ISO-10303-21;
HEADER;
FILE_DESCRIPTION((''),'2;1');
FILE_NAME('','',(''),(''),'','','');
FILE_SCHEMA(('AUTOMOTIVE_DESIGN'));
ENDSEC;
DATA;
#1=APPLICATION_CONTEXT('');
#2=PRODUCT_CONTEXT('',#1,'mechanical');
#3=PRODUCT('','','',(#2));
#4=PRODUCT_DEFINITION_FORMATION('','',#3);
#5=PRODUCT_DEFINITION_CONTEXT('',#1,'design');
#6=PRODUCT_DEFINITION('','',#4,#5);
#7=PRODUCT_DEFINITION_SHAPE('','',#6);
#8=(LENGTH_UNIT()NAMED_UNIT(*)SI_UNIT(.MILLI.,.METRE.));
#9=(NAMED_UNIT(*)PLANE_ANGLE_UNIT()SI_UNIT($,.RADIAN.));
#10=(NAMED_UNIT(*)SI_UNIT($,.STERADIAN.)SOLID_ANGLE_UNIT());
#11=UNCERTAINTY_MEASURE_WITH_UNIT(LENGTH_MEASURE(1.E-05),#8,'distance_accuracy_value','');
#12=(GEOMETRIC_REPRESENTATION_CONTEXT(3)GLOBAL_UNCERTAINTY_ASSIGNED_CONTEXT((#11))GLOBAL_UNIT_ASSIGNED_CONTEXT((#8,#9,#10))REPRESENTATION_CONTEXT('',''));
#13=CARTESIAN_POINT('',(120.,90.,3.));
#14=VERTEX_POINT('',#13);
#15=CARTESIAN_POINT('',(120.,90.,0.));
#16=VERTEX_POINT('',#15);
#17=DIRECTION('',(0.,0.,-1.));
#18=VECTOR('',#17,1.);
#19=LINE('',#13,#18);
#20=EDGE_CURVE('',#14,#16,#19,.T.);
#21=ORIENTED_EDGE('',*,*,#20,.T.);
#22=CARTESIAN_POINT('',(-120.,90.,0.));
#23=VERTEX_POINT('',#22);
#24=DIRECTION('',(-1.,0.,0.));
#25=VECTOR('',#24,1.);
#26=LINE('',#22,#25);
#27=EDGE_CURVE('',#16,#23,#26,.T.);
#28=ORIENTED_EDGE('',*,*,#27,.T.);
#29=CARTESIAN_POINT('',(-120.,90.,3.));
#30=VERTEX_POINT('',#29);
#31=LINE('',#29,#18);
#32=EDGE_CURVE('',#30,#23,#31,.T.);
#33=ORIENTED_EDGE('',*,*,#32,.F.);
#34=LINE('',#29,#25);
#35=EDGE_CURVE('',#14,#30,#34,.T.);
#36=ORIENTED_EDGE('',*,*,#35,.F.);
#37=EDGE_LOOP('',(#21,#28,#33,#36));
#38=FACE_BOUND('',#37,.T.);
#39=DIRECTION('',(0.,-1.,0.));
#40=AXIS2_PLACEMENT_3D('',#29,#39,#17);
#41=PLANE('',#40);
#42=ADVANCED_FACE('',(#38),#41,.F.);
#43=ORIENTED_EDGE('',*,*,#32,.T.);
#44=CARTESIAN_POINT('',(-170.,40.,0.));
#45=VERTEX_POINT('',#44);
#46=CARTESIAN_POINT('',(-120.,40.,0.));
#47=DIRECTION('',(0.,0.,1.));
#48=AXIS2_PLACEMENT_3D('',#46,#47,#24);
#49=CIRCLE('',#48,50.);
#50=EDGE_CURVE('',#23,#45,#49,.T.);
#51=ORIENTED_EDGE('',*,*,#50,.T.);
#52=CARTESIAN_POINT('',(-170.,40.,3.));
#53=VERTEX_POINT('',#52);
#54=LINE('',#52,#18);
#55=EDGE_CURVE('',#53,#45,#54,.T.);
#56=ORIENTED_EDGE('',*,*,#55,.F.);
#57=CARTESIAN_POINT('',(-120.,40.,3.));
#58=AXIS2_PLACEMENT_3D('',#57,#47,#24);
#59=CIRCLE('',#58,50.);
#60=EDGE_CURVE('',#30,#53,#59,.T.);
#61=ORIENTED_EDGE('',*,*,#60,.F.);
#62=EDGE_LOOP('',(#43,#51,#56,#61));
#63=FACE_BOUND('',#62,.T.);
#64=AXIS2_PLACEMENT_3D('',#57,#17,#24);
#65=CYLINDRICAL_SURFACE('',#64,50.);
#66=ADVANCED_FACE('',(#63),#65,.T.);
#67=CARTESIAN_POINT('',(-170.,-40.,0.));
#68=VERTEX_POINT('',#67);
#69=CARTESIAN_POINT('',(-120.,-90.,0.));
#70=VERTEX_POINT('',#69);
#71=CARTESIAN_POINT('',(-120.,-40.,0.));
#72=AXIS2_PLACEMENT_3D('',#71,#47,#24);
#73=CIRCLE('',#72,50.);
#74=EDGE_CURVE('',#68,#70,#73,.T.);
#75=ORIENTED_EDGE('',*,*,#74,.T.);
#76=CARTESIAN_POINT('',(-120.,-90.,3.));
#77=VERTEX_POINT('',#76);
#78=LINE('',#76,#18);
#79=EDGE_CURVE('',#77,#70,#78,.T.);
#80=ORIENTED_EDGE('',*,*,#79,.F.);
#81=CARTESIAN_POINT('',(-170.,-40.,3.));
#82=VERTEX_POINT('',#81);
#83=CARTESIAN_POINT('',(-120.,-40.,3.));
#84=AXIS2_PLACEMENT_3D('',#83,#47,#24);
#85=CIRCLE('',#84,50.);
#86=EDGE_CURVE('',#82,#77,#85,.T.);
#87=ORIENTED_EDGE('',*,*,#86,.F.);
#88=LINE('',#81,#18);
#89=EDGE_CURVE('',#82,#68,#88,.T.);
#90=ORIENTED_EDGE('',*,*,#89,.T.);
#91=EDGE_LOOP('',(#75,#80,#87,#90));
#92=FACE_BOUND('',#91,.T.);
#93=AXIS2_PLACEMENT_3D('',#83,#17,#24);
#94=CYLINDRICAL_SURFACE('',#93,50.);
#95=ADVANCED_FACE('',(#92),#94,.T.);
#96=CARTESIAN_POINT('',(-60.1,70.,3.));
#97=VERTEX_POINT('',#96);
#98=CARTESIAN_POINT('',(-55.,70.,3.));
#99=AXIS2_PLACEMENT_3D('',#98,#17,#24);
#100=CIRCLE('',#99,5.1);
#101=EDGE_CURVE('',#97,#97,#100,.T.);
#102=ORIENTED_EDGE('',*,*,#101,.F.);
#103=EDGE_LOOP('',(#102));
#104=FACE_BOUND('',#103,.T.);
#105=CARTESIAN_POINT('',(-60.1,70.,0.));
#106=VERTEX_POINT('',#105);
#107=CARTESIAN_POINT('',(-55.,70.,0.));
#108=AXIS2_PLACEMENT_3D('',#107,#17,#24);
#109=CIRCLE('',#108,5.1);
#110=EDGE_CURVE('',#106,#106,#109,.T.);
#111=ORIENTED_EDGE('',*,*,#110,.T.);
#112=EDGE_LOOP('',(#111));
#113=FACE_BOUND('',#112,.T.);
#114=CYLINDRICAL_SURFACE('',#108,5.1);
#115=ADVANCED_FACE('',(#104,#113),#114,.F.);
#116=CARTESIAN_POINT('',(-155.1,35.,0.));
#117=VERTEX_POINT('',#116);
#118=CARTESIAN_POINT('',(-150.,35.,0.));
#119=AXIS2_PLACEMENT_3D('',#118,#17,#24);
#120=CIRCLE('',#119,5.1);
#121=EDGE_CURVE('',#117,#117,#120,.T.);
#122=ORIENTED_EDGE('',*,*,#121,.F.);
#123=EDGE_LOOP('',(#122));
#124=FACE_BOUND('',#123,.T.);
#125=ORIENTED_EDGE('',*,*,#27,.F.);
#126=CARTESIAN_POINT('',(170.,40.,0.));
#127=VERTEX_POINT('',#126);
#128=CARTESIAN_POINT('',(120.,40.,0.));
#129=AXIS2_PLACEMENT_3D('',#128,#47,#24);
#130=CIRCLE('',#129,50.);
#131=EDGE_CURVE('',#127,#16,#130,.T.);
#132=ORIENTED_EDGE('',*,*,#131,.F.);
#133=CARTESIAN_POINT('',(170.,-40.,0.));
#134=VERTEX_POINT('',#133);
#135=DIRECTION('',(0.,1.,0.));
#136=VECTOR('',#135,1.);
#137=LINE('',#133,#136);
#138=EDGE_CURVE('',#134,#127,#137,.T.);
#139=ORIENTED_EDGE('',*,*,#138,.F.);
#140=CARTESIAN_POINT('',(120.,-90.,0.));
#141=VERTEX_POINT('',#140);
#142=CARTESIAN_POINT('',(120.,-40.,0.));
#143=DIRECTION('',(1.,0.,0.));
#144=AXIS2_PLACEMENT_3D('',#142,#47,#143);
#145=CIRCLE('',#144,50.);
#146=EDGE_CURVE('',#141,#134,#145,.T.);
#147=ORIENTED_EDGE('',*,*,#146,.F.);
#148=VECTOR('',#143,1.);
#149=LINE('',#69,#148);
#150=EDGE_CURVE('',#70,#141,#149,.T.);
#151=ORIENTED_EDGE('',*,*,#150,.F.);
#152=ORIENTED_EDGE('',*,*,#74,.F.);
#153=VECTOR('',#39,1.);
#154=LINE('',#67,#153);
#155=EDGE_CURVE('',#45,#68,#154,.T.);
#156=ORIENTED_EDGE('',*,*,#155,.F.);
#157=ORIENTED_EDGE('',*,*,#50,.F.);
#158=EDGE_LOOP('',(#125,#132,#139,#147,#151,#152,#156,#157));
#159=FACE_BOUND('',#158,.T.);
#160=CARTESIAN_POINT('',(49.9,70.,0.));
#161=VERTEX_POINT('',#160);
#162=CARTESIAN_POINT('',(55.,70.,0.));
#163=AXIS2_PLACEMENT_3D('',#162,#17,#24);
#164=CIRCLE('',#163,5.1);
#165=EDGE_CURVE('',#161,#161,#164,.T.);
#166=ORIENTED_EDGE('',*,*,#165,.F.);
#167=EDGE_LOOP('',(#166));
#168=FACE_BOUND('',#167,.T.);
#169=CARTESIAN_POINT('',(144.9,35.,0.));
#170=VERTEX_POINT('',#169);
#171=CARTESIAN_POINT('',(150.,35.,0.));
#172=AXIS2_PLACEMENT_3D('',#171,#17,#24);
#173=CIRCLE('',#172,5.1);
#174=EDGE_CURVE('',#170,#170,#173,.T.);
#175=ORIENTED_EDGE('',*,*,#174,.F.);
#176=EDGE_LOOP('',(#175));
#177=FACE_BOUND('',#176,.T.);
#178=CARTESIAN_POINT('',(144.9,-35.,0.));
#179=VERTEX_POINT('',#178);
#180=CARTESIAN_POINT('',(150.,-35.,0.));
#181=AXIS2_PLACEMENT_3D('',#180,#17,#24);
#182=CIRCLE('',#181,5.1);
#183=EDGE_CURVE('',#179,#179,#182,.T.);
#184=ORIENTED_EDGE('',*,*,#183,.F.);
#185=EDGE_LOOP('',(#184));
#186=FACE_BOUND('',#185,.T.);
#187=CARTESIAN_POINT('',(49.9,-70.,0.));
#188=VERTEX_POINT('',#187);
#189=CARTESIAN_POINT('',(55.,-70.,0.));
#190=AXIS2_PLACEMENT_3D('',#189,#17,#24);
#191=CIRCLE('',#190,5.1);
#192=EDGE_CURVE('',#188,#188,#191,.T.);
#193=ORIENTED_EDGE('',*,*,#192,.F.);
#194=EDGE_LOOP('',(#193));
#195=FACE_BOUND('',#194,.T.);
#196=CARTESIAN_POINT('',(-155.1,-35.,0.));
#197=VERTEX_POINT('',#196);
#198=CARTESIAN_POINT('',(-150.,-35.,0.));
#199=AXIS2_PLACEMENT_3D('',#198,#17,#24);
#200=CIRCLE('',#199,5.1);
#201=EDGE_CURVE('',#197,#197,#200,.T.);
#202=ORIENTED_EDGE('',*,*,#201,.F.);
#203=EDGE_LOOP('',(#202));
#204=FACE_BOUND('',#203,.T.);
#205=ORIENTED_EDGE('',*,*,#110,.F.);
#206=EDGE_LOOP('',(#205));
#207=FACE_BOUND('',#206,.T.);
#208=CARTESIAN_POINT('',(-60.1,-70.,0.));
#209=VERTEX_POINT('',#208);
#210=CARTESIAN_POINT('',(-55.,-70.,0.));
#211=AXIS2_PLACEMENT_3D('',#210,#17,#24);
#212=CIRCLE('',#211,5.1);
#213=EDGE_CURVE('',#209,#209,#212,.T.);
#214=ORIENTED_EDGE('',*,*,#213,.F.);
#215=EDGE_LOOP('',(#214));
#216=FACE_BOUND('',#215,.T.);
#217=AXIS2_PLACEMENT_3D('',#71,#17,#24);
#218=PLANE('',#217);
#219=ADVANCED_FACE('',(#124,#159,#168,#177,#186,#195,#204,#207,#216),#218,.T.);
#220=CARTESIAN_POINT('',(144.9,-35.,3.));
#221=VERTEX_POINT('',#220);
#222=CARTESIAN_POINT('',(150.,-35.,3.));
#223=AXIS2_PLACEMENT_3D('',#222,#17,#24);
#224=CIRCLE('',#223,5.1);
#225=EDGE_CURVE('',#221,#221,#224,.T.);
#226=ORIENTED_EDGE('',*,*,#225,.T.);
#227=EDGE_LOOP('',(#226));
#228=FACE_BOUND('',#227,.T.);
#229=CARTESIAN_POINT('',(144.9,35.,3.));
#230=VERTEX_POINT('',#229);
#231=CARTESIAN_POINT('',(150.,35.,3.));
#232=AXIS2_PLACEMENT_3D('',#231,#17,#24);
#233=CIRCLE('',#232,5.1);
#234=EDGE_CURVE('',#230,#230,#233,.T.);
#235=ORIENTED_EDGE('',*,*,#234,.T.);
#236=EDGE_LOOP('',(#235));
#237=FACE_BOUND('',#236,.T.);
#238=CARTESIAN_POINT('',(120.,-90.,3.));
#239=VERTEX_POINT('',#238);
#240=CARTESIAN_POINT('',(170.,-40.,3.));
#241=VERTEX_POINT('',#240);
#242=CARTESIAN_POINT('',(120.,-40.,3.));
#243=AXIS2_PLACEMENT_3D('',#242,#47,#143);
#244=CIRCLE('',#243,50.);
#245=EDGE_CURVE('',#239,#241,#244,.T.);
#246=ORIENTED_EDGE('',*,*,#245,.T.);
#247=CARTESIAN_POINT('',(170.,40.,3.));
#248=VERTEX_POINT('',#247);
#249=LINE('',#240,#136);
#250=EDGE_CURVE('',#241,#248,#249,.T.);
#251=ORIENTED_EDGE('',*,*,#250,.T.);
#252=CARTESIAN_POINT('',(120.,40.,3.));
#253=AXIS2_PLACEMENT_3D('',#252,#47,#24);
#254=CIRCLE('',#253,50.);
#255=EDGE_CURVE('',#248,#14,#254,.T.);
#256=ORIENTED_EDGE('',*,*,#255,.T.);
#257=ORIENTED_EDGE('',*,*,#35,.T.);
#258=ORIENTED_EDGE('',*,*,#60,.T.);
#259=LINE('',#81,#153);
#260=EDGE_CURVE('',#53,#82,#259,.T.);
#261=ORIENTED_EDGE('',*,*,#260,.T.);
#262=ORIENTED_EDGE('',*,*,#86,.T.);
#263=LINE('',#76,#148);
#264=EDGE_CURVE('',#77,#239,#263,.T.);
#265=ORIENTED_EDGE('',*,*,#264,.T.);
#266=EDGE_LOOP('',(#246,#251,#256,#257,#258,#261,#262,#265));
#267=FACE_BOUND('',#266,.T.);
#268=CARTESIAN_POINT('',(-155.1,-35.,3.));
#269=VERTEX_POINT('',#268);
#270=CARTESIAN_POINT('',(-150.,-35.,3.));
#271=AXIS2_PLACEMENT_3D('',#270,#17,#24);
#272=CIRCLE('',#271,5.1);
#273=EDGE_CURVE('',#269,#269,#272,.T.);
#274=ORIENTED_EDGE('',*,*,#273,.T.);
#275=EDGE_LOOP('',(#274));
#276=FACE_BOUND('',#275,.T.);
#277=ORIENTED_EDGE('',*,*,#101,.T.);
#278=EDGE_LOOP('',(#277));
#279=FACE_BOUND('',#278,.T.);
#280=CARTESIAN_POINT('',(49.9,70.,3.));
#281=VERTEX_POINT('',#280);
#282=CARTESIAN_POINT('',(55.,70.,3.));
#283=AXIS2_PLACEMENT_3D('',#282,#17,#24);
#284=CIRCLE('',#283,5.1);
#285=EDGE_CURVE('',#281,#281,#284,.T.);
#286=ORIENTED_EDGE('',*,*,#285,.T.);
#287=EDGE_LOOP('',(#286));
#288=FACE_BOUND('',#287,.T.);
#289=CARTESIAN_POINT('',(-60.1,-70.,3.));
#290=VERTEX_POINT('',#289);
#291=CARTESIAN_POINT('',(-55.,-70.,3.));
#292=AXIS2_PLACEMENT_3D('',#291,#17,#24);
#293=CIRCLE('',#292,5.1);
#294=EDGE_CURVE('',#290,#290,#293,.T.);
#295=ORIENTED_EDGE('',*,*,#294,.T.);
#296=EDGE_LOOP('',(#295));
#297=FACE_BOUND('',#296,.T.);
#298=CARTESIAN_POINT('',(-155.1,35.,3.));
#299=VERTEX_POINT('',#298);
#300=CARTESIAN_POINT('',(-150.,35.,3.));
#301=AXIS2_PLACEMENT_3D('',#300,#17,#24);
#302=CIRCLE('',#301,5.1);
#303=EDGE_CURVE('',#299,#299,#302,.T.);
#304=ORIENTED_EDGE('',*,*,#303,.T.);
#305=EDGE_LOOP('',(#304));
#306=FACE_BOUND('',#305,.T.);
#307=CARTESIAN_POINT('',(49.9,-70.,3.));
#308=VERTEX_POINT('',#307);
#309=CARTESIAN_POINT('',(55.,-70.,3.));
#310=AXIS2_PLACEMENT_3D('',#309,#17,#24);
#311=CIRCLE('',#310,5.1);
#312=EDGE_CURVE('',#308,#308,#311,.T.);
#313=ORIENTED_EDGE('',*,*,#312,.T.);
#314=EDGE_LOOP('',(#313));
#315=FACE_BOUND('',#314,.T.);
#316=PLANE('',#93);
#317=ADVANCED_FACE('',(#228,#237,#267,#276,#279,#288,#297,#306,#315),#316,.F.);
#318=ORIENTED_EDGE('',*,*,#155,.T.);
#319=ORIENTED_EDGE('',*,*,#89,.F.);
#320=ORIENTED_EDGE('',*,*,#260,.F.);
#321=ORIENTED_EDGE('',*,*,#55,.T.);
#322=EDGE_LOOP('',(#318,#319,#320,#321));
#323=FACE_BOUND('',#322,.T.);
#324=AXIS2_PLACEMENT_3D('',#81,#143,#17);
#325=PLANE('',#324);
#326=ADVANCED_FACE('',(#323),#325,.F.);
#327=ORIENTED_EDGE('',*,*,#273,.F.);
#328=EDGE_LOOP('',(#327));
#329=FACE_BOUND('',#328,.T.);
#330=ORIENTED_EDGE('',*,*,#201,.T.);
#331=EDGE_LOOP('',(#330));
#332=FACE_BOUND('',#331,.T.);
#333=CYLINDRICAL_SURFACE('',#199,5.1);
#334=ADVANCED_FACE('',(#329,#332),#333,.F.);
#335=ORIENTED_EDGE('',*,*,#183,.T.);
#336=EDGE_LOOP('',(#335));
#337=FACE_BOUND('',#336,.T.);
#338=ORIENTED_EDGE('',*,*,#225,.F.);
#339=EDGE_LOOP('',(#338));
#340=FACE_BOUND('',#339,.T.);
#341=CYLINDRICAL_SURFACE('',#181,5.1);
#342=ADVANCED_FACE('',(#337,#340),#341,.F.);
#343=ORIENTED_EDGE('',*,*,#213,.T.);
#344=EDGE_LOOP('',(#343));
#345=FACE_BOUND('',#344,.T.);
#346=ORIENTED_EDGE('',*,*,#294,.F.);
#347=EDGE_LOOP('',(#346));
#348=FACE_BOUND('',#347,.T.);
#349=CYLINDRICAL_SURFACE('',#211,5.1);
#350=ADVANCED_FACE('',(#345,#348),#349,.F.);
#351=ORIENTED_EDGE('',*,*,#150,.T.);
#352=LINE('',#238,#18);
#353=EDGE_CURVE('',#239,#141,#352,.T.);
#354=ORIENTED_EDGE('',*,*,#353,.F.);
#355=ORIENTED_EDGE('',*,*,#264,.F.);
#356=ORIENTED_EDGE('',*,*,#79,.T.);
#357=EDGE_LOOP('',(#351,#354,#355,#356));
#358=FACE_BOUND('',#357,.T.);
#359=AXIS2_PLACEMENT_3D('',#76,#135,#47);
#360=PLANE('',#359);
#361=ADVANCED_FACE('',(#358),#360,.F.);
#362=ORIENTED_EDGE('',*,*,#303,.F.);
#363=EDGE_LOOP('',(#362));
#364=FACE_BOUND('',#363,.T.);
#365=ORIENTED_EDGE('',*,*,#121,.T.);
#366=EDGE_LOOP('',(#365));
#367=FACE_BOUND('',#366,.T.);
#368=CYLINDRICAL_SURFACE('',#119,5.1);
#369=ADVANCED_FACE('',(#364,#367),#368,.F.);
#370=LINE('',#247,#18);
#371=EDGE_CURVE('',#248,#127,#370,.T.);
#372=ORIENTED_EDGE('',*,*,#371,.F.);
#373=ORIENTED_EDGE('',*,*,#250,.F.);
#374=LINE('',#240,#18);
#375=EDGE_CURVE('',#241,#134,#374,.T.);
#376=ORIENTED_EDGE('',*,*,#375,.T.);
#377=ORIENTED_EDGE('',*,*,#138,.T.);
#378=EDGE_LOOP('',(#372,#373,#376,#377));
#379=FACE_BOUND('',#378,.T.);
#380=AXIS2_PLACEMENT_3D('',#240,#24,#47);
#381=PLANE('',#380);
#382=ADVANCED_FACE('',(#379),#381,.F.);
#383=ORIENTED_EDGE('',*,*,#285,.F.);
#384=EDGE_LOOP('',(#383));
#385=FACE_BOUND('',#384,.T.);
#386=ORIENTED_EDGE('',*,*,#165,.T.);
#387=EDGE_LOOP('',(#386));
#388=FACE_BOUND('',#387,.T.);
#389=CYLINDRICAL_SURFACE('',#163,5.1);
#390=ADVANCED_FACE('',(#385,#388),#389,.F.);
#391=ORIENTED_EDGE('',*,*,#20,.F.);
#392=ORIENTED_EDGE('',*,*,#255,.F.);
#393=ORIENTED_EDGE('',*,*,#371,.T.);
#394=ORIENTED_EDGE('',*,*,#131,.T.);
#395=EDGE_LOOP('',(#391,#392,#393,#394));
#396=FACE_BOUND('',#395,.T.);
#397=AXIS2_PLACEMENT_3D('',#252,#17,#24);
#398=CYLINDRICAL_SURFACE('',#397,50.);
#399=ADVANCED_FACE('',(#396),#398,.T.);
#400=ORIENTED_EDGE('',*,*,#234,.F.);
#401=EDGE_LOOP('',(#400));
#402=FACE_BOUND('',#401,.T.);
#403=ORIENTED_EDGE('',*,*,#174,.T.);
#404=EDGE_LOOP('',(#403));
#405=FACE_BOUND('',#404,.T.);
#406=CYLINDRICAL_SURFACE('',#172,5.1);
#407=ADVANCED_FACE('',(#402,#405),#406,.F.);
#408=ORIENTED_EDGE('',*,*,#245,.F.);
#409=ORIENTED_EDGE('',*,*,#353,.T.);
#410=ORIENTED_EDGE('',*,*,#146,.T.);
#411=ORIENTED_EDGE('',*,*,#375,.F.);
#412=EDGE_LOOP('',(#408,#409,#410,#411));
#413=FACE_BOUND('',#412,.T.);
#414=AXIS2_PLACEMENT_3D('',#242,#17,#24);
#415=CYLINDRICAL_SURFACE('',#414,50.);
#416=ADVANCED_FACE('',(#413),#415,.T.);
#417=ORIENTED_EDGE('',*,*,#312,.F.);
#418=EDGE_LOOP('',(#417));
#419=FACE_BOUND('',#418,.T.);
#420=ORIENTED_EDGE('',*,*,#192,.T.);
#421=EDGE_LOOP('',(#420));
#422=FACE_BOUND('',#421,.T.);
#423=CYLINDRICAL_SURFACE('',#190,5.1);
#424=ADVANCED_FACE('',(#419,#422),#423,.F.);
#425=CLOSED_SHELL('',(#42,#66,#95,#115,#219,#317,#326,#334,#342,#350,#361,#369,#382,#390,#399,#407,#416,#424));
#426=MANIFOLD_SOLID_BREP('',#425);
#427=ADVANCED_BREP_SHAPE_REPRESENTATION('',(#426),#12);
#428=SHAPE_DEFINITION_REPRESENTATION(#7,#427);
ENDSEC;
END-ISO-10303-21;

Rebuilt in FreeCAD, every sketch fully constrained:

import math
import FreeCAD as App
import Part
import Sketcher

V = App.Vector

doc = App.newDocument("Part")
params = doc.addObject("Spreadsheet::Sheet", "Params")
for row, (alias, value) in enumerate([
    ("sketch1_radius", "50 mm"),
    ("sketch1_width", "240 mm"),
    ("sketch1_height", "80 mm"),
    ("pad1_length", "3 mm"),
    ("sketch2_diameter", "10.2 mm"),
    ("hole_diameter", "10.2 mm"),
], start=1):
    params.set(f"A{row}", alias)
    params.set(f"B{row}", "=" + value)
    params.setAlias(f"B{row}", alias)

body = doc.addObject("PartDesign::Body", "Body")

# Sketch on XY plane
sketch1 = body.newObject("Sketcher::SketchObject", "Sketch")
sketch1.AttachmentSupport = (doc.getObject("XY_Plane"), [""])
sketch1.MapMode = "FlatFace"
sketch1.addGeometry([
    Part.LineSegment(V(-120, -90, 0), V(120, -90, 0)),  # 0
    Part.ArcOfCircle(Part.Circle(V(120, -40, 0), V(0, 0, 1), 50), math.radians(-90), math.radians(0)),  # 1
    Part.LineSegment(V(170, -40, 0), V(170, 40, 0)),  # 2
    Part.ArcOfCircle(Part.Circle(V(120, 40, 0), V(0, 0, 1), 50), math.radians(0), math.radians(90)),  # 3
    Part.LineSegment(V(120, 90, 0), V(-120, 90, 0)),  # 4
    Part.ArcOfCircle(Part.Circle(V(-120, 40, 0), V(0, 0, 1), 50), math.radians(90), math.radians(180)),  # 5
    Part.LineSegment(V(-170, 40, 0), V(-170, -40, 0)),  # 6
    Part.ArcOfCircle(Part.Circle(V(-120, -40, 0), V(0, 0, 1), 50), math.radians(-180), math.radians(-90)),  # 7
], False)
sketch1.addConstraint([
    Sketcher.Constraint("Tangent", 0, 2, 1, 1),
    Sketcher.Constraint("Tangent", 1, 2, 2, 1),
    Sketcher.Constraint("Tangent", 2, 2, 3, 1),
    Sketcher.Constraint("Tangent", 3, 2, 4, 1),
    Sketcher.Constraint("Tangent", 4, 2, 5, 1),
    Sketcher.Constraint("Tangent", 5, 2, 6, 1),
    Sketcher.Constraint("Tangent", 6, 2, 7, 1),
    Sketcher.Constraint("Tangent", 7, 2, 0, 1),
    Sketcher.Constraint("Horizontal", 0),
    Sketcher.Constraint("Vertical", 2),
    Sketcher.Constraint("Horizontal", 4),
    Sketcher.Constraint("Vertical", 6),
    Sketcher.Constraint("Equal", 1, 3),
    Sketcher.Constraint("Equal", 3, 5),
    Sketcher.Constraint("Equal", 5, 7),
    Sketcher.Constraint("Symmetric", 1, 3, 5, 3, -1, 1),
    Sketcher.Constraint("Radius", 1, 50.0),
    Sketcher.Constraint("DistanceX", 0, 1, 0, 2, 240.0),
    Sketcher.Constraint("DistanceY", 2, 1, 2, 2, 80.0),
])
sketch1.setExpression("Constraints[16]", "Params.sketch1_radius")
sketch1.setExpression("Constraints[17]", "Params.sketch1_width")
sketch1.setExpression("Constraints[18]", "Params.sketch1_height")
pad1 = body.newObject("PartDesign::Pad", "Pad")
pad1.Profile = sketch1
pad1.setExpression("Length", "Params.pad1_length")

# Sketch on XY plane
sketch2 = body.newObject("Sketcher::SketchObject", "Sketch001")
sketch2.AttachmentSupport = (doc.getObject("XY_Plane"), [""])
sketch2.MapMode = "FlatFace"
sketch2.addGeometry([
    Part.Circle(V(-55, 70, 0), V(0, 0, 1), 5.1),  # 0
    Part.Circle(V(55, 70, 0), V(0, 0, 1), 5.1),  # 1
    Part.Circle(V(-55, -70, 0), V(0, 0, 1), 5.1),  # 2
    Part.Circle(V(55, -70, 0), V(0, 0, 1), 5.1),  # 3
    Part.Circle(V(150, 35, 0), V(0, 0, 1), 5.1),  # 4
    Part.Circle(V(150, -35, 0), V(0, 0, 1), 5.1),  # 5
    Part.Circle(V(-150, -35, 0), V(0, 0, 1), 5.1),  # 6
    Part.Circle(V(-150, 35, 0), V(0, 0, 1), 5.1),  # 7
], False)
sketch2.addConstraint([
    Sketcher.Constraint("Equal", 0, 1),
    Sketcher.Constraint("Equal", 1, 2),
    Sketcher.Constraint("Equal", 2, 3),
    Sketcher.Constraint("Equal", 3, 4),
    Sketcher.Constraint("Equal", 4, 5),
    Sketcher.Constraint("Equal", 5, 6),
    Sketcher.Constraint("Equal", 6, 7),
    Sketcher.Constraint("Symmetric", 1, 3, 2, 3, -1, 1),
    Sketcher.Constraint("Symmetric", 0, 3, 3, 3, -1, 1),
    Sketcher.Constraint("Symmetric", 4, 3, 6, 3, -1, 1),
    Sketcher.Constraint("Symmetric", 5, 3, 7, 3, -1, 1),
    Sketcher.Constraint("Symmetric", 0, 3, 1, 3, -2),
    Sketcher.Constraint("Symmetric", 5, 3, 6, 3, -2),
    Sketcher.Constraint("Diameter", 0, 10.2),
    Sketcher.Constraint("DistanceX", 0, 3, -1, 1, 55.0),
    Sketcher.Constraint("DistanceY", -1, 1, 0, 3, 70.0),
    Sketcher.Constraint("DistanceX", -1, 1, 4, 3, 150.0),
    Sketcher.Constraint("DistanceY", -1, 1, 4, 3, 35.0),
])
sketch2.setExpression("Constraints[13]", "Params.sketch2_diameter")
doc.recompute()
hole = body.newObject("PartDesign::Hole", "Hole")
hole.Profile = sketch2
hole.ThreadType = "None"
hole.setExpression("Diameter", "Params.hole_diameter")
hole.DepthType = "ThroughAll"
hole.Reversed = True

doc.recompute()
